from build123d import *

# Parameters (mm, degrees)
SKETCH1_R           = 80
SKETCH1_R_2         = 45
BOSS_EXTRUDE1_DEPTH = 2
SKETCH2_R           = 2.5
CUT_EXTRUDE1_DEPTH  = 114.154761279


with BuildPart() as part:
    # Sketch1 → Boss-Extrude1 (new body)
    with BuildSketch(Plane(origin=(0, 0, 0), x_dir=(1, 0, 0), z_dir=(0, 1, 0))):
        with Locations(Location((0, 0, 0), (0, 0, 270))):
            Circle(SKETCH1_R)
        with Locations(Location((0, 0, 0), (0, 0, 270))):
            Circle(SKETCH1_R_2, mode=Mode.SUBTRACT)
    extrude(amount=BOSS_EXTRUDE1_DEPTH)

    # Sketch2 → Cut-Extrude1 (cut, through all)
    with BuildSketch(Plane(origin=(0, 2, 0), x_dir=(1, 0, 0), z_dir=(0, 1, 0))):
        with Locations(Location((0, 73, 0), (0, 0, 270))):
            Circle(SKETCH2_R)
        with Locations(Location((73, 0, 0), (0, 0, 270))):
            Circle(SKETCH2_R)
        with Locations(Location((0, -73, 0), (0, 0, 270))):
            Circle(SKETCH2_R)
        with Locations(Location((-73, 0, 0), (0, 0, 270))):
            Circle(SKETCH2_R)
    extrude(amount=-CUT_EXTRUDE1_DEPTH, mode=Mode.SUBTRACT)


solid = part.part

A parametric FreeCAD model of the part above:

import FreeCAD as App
import Part
import Sketcher

doc = App.newDocument("Part")
body = doc.addObject("PartDesign::Body", "Body")

# Sketch on XZ plane
sketch1 = body.newObject("Sketcher::SketchObject", "Sketch")
sketch1.AttachmentSupport = (doc.getObject("XZ_Plane"), [""])
sketch1.MapMode = "FlatFace"
sketch1.addGeometry(Part.Circle(App.Vector(0, 0, 0), App.Vector(0, 0, 1), 80), False)
sketch1.addGeometry(Part.Circle(App.Vector(0, 0, 0), App.Vector(0, 0, 1), 45), False)
sketch1.addConstraint(Sketcher.Constraint("Coincident", 0, 3, -1, 1))
sketch1.addConstraint(Sketcher.Constraint("Coincident", 1, 3, -1, 1))
sketch1.addConstraint(Sketcher.Constraint("Diameter", 0, 160.0))
sketch1.addConstraint(Sketcher.Constraint("Diameter", 1, 90.0))
pad1 = body.newObject("PartDesign::Pad", "Pad")
pad1.Profile = sketch1
pad1.Length = 2
pad1.Reversed = True

# Sketch on XZ plane
sketch2 = body.newObject("Sketcher::SketchObject", "Sketch001")
sketch2.AttachmentSupport = (doc.getObject("XZ_Plane"), [""])
sketch2.MapMode = "FlatFace"
sketch2.AttachmentOffset = App.Placement(App.Vector(0, 0, -2), App.Rotation())
sketch2.addGeometry(Part.Circle(App.Vector(0, -73, 0), App.Vector(0, 0, 1), 2.5), False)
sketch2.addGeometry(Part.Circle(App.Vector(73, 0, 0), App.Vector(0, 0, 1), 2.5), False)
sketch2.addGeometry(Part.Circle(App.Vector(0, 73, 0), App.Vector(0, 0, 1), 2.5), False)
sketch2.addGeometry(Part.Circle(App.Vector(-73, 0, 0), App.Vector(0, 0, 1), 2.5), False)
sketch2.addConstraint(Sketcher.Constraint("Equal", 0, 1))
sketch2.addConstraint(Sketcher.Constraint("Equal", 1, 2))
sketch2.addConstraint(Sketcher.Constraint("Equal", 2, 3))
sketch2.addConstraint(Sketcher.Constraint("Symmetric", 0, 3, 2, 3, -1, 1))
sketch2.addConstraint(Sketcher.Constraint("Symmetric", 1, 3, 3, 3, -1, 1))
sketch2.addConstraint(Sketcher.Constraint("PointOnObject", 0, 3, -2))
sketch2.addConstraint(Sketcher.Constraint("PointOnObject", 1, 3, -1))
sketch2.addConstraint(Sketcher.Constraint("Diameter", 0, 5.0))
sketch2.addConstraint(Sketcher.Constraint("DistanceY", 0, 3, -1, 1, 73.0))
sketch2.addConstraint(Sketcher.Constraint("DistanceX", -1, 1, 1, 3, 73.0))
pocket1 = body.newObject("PartDesign::Pocket", "Pocket")
pocket1.Profile = sketch2
pocket1.Type = "ThroughAll"
pocket1.Reversed = True

doc.recompute()
